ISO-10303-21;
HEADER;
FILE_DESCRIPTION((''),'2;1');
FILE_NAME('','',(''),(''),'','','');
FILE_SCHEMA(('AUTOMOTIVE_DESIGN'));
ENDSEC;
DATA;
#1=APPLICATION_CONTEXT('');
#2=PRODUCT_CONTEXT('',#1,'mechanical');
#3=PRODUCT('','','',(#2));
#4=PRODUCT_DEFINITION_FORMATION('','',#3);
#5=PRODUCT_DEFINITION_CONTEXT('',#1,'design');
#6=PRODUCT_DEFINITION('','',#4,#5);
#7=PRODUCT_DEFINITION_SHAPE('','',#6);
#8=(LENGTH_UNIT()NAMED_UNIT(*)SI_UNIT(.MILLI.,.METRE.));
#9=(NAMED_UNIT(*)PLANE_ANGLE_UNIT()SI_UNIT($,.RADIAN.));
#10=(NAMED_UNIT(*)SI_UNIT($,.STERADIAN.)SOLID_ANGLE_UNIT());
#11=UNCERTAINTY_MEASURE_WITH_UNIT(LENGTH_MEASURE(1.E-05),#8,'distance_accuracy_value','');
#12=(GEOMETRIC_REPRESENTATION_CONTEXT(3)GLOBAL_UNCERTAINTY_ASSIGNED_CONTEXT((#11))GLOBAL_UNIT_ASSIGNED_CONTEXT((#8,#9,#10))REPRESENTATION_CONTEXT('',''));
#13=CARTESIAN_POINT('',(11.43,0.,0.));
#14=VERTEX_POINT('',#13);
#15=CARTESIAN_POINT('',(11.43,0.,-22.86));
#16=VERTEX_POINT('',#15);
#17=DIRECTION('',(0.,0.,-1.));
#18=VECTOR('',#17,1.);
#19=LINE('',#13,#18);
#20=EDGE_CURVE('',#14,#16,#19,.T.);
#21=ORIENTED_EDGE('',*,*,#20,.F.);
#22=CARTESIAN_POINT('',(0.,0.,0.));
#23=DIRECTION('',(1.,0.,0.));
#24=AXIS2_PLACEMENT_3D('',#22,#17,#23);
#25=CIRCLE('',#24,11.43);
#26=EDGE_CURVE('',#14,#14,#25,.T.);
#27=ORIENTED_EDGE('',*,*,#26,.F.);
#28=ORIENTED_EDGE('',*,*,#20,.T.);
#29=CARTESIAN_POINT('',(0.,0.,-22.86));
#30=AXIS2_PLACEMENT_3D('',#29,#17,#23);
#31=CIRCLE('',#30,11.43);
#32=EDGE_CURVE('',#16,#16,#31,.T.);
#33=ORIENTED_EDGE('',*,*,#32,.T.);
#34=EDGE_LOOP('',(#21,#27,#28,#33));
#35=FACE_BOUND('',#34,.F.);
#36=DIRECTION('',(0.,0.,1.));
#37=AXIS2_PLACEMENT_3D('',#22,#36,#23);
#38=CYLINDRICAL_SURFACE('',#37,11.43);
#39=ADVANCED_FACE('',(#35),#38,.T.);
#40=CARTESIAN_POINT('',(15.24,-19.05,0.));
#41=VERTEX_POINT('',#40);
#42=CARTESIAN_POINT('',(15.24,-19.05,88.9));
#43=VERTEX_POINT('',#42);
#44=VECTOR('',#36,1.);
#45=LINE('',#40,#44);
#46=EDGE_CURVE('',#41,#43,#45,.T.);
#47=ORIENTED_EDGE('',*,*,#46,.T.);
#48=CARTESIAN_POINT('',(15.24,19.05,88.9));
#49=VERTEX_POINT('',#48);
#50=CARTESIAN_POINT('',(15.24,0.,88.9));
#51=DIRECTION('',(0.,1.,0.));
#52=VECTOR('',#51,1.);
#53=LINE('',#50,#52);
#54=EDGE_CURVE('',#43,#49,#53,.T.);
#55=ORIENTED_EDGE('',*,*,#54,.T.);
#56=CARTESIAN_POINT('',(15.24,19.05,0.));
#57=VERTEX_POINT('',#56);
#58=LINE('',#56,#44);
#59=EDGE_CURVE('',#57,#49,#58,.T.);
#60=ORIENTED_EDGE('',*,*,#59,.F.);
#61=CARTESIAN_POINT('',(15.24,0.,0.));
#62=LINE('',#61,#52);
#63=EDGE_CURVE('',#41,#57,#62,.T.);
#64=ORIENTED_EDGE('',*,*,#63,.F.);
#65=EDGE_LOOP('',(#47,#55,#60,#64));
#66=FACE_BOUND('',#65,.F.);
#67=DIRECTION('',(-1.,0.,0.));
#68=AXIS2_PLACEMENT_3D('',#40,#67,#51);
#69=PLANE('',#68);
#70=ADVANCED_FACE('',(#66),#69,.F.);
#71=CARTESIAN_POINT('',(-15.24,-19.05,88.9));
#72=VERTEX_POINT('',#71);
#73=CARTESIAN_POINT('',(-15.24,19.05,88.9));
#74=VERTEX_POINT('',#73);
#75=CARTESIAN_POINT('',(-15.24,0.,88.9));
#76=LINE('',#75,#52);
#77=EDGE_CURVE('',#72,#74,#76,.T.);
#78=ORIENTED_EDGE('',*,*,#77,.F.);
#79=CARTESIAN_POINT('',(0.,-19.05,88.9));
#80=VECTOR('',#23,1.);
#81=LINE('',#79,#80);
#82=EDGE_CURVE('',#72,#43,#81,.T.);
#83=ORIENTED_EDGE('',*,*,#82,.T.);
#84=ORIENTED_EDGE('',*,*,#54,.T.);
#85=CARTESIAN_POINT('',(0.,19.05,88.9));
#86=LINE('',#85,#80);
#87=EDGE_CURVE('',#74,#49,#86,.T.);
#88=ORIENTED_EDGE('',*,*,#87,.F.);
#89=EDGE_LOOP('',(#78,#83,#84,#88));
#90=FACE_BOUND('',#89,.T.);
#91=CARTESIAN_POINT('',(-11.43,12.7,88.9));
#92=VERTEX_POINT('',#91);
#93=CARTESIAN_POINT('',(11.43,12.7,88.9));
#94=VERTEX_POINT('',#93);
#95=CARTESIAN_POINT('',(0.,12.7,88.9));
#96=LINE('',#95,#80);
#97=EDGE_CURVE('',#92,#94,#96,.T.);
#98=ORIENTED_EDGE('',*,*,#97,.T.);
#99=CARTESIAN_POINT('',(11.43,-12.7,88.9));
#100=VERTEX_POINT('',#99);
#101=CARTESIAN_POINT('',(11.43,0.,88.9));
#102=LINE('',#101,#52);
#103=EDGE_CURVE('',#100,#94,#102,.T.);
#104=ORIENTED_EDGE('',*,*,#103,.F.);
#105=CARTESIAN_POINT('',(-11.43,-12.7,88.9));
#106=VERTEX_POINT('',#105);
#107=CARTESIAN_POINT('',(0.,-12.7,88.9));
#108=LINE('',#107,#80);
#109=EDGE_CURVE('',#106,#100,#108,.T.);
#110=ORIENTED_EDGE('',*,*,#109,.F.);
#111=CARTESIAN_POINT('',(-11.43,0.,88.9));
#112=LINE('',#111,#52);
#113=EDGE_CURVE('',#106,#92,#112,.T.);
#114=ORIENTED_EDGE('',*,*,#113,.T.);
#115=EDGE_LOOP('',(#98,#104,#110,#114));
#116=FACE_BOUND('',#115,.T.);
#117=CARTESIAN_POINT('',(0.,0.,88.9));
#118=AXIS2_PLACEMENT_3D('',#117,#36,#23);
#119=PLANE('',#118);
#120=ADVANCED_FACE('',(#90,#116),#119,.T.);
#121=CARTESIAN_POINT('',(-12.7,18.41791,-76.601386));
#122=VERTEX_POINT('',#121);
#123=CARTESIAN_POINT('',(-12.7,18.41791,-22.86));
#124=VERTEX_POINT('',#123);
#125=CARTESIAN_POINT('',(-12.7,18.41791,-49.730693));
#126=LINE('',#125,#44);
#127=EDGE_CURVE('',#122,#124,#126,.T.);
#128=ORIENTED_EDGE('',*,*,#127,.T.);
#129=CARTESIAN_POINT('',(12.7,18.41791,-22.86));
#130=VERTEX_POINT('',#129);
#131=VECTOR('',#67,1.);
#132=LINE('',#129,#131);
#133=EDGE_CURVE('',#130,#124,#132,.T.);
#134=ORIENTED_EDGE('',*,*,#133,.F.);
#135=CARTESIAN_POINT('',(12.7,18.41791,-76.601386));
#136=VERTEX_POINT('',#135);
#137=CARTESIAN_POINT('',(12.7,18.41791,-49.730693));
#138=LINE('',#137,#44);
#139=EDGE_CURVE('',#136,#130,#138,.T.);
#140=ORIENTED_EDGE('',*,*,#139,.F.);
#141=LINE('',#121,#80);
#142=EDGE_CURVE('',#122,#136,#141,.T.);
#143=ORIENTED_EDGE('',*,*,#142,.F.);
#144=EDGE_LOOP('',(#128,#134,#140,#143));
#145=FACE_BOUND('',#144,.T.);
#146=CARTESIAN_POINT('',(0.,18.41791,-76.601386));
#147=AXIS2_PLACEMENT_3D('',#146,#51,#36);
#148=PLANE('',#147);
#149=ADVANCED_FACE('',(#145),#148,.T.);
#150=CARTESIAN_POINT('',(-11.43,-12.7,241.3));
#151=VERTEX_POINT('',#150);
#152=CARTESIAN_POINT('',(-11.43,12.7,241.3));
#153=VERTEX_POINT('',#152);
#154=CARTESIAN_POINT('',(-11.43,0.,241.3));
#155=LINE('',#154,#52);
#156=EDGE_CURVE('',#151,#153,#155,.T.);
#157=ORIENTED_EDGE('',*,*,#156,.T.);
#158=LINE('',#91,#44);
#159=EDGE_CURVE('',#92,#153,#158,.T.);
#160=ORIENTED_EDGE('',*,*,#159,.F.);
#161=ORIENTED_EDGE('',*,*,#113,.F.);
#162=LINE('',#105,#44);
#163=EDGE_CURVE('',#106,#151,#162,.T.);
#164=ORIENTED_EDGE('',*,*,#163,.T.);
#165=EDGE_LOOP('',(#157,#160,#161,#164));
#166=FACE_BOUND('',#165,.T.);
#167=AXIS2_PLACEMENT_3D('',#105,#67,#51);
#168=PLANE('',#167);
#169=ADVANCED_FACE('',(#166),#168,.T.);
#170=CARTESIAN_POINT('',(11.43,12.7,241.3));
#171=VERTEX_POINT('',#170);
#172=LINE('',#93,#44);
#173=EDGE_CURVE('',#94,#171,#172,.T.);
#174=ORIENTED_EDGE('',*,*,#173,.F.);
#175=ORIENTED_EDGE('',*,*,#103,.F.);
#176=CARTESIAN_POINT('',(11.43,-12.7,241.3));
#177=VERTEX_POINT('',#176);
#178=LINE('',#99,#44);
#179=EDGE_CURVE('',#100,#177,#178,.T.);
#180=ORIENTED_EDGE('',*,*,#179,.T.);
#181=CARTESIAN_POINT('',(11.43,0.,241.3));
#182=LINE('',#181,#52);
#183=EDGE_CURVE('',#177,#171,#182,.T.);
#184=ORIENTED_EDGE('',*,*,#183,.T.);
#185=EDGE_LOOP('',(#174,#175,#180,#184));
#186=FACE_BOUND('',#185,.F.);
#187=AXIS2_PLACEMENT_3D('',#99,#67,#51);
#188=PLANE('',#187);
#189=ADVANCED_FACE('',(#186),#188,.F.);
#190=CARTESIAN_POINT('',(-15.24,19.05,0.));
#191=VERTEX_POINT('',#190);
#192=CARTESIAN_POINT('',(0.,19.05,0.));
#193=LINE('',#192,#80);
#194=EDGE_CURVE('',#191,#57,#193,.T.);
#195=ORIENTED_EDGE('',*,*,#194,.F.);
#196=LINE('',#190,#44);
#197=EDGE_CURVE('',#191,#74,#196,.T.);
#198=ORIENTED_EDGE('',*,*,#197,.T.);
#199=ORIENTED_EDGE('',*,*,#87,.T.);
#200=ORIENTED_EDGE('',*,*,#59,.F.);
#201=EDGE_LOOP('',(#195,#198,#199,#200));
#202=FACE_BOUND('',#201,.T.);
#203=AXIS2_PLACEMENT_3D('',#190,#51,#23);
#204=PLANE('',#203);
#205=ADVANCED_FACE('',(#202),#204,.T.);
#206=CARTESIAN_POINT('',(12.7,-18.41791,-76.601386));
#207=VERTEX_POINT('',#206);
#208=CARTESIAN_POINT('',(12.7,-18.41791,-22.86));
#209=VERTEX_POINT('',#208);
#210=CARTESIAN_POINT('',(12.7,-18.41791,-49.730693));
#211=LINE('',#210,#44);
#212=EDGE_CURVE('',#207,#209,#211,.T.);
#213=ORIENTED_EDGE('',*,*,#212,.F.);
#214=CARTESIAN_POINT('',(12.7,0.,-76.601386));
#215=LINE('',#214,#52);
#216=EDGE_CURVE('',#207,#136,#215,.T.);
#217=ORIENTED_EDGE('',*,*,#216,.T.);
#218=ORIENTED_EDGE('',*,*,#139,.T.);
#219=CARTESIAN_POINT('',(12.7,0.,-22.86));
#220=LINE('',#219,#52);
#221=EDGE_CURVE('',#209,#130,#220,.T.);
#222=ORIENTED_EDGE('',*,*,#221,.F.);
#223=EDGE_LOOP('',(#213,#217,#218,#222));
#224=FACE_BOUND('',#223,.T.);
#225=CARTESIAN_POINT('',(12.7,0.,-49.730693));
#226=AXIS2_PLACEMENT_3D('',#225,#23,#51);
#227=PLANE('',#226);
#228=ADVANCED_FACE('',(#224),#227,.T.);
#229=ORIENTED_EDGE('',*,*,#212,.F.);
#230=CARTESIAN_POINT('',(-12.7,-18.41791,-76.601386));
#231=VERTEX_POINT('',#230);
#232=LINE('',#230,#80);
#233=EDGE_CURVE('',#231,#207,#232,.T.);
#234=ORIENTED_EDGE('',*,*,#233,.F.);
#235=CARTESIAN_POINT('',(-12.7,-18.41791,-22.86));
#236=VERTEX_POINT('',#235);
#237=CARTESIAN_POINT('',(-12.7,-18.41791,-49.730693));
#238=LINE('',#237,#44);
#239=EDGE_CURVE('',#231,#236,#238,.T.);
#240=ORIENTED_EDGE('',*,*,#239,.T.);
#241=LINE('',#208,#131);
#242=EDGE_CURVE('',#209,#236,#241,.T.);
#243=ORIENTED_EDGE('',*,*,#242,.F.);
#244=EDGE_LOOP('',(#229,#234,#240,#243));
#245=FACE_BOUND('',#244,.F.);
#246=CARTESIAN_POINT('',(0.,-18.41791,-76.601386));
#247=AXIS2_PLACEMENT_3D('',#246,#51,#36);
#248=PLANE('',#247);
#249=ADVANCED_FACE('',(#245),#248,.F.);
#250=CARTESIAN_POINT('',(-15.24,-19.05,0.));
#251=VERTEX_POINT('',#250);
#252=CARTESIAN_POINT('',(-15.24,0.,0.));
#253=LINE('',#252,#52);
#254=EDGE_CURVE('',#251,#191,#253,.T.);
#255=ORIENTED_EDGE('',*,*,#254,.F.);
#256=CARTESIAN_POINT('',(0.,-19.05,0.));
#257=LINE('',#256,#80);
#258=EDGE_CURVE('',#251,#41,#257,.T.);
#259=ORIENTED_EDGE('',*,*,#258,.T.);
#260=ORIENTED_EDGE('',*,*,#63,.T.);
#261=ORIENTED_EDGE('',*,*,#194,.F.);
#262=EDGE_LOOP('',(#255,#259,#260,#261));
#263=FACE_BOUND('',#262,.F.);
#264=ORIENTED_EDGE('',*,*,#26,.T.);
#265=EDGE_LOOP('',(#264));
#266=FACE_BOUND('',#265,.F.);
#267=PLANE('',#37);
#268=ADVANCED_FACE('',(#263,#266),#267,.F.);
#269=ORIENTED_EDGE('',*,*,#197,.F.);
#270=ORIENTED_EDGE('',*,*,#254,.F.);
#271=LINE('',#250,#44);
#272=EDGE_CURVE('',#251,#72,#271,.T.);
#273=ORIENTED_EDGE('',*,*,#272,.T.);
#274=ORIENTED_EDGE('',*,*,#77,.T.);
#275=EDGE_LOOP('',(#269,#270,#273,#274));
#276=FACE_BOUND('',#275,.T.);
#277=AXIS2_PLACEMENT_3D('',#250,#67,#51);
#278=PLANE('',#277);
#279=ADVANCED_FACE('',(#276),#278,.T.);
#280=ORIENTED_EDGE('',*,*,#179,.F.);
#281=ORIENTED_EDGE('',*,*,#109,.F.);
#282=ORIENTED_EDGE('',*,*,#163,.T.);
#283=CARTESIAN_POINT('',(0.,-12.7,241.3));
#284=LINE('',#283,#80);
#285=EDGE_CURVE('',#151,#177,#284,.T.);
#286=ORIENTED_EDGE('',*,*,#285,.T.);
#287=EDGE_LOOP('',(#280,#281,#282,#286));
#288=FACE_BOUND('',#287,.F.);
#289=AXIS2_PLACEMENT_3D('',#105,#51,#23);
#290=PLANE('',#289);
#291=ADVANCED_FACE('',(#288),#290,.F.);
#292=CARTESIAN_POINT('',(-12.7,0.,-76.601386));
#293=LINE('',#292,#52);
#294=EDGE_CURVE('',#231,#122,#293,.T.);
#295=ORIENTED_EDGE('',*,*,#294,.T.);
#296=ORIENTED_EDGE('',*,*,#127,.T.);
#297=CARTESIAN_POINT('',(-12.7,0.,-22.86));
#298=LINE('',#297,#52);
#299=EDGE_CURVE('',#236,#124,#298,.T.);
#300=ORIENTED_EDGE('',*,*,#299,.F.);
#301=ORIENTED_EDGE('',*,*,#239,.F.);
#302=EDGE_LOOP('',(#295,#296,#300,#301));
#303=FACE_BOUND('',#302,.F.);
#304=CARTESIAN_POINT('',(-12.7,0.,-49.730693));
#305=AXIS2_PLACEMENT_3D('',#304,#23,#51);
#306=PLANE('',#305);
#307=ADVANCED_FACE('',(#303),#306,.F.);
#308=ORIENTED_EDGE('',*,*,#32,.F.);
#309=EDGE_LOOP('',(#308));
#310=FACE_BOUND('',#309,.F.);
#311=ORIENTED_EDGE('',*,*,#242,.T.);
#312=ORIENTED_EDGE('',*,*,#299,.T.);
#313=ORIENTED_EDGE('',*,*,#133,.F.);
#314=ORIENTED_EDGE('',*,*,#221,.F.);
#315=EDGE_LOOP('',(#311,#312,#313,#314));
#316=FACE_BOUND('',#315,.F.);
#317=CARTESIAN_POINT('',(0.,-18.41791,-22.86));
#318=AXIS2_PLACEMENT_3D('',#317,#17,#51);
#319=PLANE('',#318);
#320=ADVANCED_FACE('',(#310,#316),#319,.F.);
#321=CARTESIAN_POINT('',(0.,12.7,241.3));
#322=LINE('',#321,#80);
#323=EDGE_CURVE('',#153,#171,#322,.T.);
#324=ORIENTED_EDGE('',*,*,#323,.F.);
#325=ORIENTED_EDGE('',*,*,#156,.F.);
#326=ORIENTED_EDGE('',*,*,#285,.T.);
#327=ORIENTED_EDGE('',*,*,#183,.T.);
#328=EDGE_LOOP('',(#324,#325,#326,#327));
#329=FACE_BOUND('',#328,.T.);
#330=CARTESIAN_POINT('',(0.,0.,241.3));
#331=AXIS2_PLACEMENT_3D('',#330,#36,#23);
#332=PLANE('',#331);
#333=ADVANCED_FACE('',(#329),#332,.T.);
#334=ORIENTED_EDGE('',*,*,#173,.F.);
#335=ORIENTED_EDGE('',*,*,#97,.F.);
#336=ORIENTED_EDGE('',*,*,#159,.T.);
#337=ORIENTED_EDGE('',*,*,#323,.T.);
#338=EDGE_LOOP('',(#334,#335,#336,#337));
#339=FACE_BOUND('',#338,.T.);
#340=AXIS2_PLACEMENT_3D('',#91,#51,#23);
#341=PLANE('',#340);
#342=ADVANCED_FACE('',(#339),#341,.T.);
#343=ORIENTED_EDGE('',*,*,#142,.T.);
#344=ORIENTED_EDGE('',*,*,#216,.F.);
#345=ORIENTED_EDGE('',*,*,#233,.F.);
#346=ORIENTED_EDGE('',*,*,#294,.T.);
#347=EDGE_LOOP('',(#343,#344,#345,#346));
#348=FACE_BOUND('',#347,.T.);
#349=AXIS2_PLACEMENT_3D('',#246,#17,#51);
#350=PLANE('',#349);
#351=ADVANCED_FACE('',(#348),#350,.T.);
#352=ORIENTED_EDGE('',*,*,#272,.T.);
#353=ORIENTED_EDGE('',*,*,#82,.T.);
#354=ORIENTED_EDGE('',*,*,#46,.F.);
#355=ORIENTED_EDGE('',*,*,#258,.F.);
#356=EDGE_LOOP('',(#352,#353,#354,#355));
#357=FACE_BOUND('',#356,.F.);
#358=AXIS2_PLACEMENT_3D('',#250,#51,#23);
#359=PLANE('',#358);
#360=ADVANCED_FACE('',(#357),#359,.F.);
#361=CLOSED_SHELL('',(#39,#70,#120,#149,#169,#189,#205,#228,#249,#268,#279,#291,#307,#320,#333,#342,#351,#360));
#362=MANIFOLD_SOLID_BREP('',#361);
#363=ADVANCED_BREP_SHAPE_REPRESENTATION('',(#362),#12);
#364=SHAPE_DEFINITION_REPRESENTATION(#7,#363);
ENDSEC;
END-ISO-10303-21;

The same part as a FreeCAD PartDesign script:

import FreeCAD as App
import Part
import Sketcher
Q = App.Units.Quantity

doc = App.newDocument("Part")
body = doc.addObject("PartDesign::Body", "Body")

sketch1 = body.newObject("Sketcher::SketchObject", "Sketch")
sketch1.AttachmentSupport = (doc.getObject("XY_Plane"), [""])
sketch1.MapMode = "FlatFace"
sketch1.addGeometry(Part.LineSegment(App.Vector(-15, 19, 0), App.Vector(-15, -19, 0)), False)
sketch1.addGeometry(Part.LineSegment(App.Vector(-15, -19, 0), App.Vector(15, -19, 0)), False)
sketch1.addGeometry(Part.LineSegment(App.Vector(15, -19, 0), App.Vector(15, 19, 0)), False)
sketch1.addGeometry(Part.LineSegment(App.Vector(15, 19, 0), App.Vector(-15, 19, 0)), False)
sketch1.addConstraint(Sketcher.Constraint("Coincident", 0, 2, 1, 1))
sketch1.addConstraint(Sketcher.Constraint("Coincident", 1, 2, 2, 1))
sketch1.addConstraint(Sketcher.Constraint("Coincident", 2, 2, 3, 1))
sketch1.addConstraint(Sketcher.Constraint("Coincident", 3, 2, 0, 1))
sketch1.addConstraint(Sketcher.Constraint("Vertical", 0))
sketch1.addConstraint(Sketcher.Constraint("Horizontal", 1))
sketch1.addConstraint(Sketcher.Constraint("Vertical", 2))
sketch1.addConstraint(Sketcher.Constraint("Horizontal", 3))
sketch1.addConstraint(Sketcher.Constraint("Symmetric", 0, 2, 2, 2, -1, 1))
sketch1.addConstraint(Sketcher.Constraint("DistanceX", 1, 1, 1, 2, Q("1.2 in")))
sketch1.addConstraint(Sketcher.Constraint("DistanceY", 0, 2, 0, 1, Q("1.5 in")))
pad1 = body.newObject("PartDesign::Pad", "Pad")
pad1.Profile = sketch1
pad1.Length = Q("3.5 in")

sketch2 = body.newObject("Sketcher::SketchObject", "Sketch001")
sketch2.AttachmentSupport = (doc.getObject("XY_Plane"), [""])
sketch2.MapMode = "FlatFace"
sketch2.AttachmentOffset = App.Placement(App.Vector(0, 0, 3.5 * 25.4), App.Rotation())
sketch2.addGeometry(Part.LineSegment(App.Vector(-11, 13, 0), App.Vector(-11, -13, 0)), False)
sketch2.addGeometry(Part.LineSegment(App.Vector(-11, -13, 0), App.Vector(11, -13, 0)), False)
sketch2.addGeometry(Part.LineSegment(App.Vector(11, -13, 0), App.Vector(11, 13, 0)), False)
sketch2.addGeometry(Part.LineSegment(App.Vector(11, 13, 0), App.Vector(-11, 13, 0)), False)
sketch2.addConstraint(Sketcher.Constraint("Coincident", 0, 2, 1, 1))
sketch2.addConstraint(Sketcher.Constraint("Coincident", 1, 2, 2, 1))
sketch2.addConstraint(Sketcher.Constraint("Coincident", 2, 2, 3, 1))
sketch2.addConstraint(Sketcher.Constraint("Coincident", 3, 2, 0, 1))
sketch2.addConstraint(Sketcher.Constraint("Vertical", 0))
sketch2.addConstraint(Sketcher.Constraint("Horizontal", 1))
sketch2.addConstraint(Sketcher.Constraint("Vertical", 2))
sketch2.addConstraint(Sketcher.Constraint("Horizontal", 3))
sketch2.addConstraint(Sketcher.Constraint("Symmetric", 0, 2, 2, 2, -1, 1))
sketch2.addConstraint(Sketcher.Constraint("DistanceY", 0, 2, 0, 1, Q("1 in")))
sketch2.addConstraint(Sketcher.Constraint("DistanceX", 1, 1, 1, 2, Q("0.9 in")))
pad2 = body.newObject("PartDesign::Pad", "Pad001")
pad2.Profile = sketch2
pad2.Length = Q("6 in")

sketch3 = body.newObject("Sketcher::SketchObject", "Sketch002")
sketch3.AttachmentSupport = (doc.getObject("XY_Plane"), [""])
sketch3.MapMode = "FlatFace"
sketch3.addGeometry(Part.Circle(App.Vector(0, 0, 0), App.Vector(0, 0, 1), 11), False)
sketch3.addConstraint(Sketcher.Constraint("Coincident", 0, 3, -1, 1))
sketch3.addConstraint(Sketcher.Constraint("Diameter", 0, Q("0.9 in")))
pad3 = body.newObject("PartDesign::Pad", "Pad002")
pad3.Profile = sketch3
pad3.Length = Q("0.9 in")
pad3.Reversed = True

sketch4 = body.newObject("Sketcher::SketchObject", "Sketch003")
sketch4.AttachmentSupport = (doc.getObject("YZ_Plane"), [""])
sketch4.MapMode = "FlatFace"
sketch4.addGeometry(Part.LineSegment(App.Vector(-18, -23, 0), App.Vector(-18, -77, 0)), False)
sketch4.addGeometry(Part.LineSegment(App.Vector(-18, -77, 0), App.Vector(18, -77, 0)), False)
sketch4.addGeometry(Part.LineSegment(App.Vector(18, -77, 0), App.Vector(18, -23, 0)), False)
sketch4.addGeometry(Part.LineSegment(App.Vector(18, -23, 0), App.Vector(-18, -23, 0)), False)
sketch4.addConstraint(Sketcher.Constraint("Coincident", 0, 2, 1, 1))
sketch4.addConstraint(Sketcher.Constraint("Coincident", 1, 2, 2, 1))
sketch4.addConstraint(Sketcher.Constraint("Coincident", 2, 2, 3, 1))
sketch4.addConstraint(Sketcher.Constraint("Coincident", 3, 2, 0, 1))
sketch4.addConstraint(Sketcher.Constraint("Vertical", 0))
sketch4.addConstraint(Sketcher.Constraint("Horizontal", 1))
sketch4.addConstraint(Sketcher.Constraint("Vertical", 2))
sketch4.addConstraint(Sketcher.Constraint("Horizontal", 3))
sketch4.addConstraint(Sketcher.Constraint("DistanceY", 2, 2, -1, 1, Q("0.9 in")))
sketch4.addConstraint(Sketcher.Constraint("DistanceX", 1, 1, 1, 2, Q("36.83582 mm")))
sketch4.addConstraint(Sketcher.Constraint("DistanceY", 0, 2, 0, 1, Q("53.741386 mm")))
sketch4.addConstraint(Sketcher.Constraint("DistanceX", 0, 2, -1, 1, Q("18.41791 mm")))
pad4 = body.newObject("PartDesign::Pad", "Pad003")
pad4.Profile = sketch4
pad4.Length = Q("0.5 in")

sketch5 = body.newObject("Sketcher::SketchObject", "Sketch004")
sketch5.AttachmentSupport = (doc.getObject("YZ_Plane"), [""])
sketch5.MapMode = "FlatFace"
sketch5.addGeometry(Part.LineSegment(App.Vector(-18, -23, 0), App.Vector(-18, -77, 0)), False)
sketch5.addGeometry(Part.LineSegment(App.Vector(-18, -77, 0), App.Vector(18, -77, 0)), False)
sketch5.addGeometry(Part.LineSegment(App.Vector(18, -77, 0), App.Vector(18, -23, 0)), False)
sketch5.addGeometry(Part.LineSegment(App.Vector(18, -23, 0), App.Vector(-18, -23, 0)), False)
sketch5.addConstraint(Sketcher.Constraint("Coincident", 0, 2, 1, 1))
sketch5.addConstraint(Sketcher.Constraint("Coincident", 1, 2, 2, 1))
sketch5.addConstraint(Sketcher.Constraint("Coincident", 2, 2, 3, 1))
sketch5.addConstraint(Sketcher.Constraint("Coincident", 3, 2, 0, 1))
sketch5.addConstraint(Sketcher.Constraint("Vertical", 0))
sketch5.addConstraint(Sketcher.Constraint("Horizontal", 1))
sketch5.addConstraint(Sketcher.Constraint("Vertical", 2))
sketch5.addConstraint(Sketcher.Constraint("Horizontal", 3))
sketch5.addConstraint(Sketcher.Constraint("DistanceY", 2, 2, -1, 1, Q("0.9 in")))
sketch5.addConstraint(Sketcher.Constraint("DistanceX", 1, 1, 1, 2, Q("36.83582 mm")))
sketch5.addConstraint(Sketcher.Constraint("DistanceY", 0, 2, 0, 1, Q("53.741386 mm")))
sketch5.addConstraint(Sketcher.Constraint("DistanceX", 0, 2, -1, 1, Q("18.41791 mm")))
pad5 = body.newObject("PartDesign::Pad", "Pad004")
pad5.Profile = sketch5
pad5.Length = Q("0.5 in")
pad5.Reversed = True

doc.recompute()
